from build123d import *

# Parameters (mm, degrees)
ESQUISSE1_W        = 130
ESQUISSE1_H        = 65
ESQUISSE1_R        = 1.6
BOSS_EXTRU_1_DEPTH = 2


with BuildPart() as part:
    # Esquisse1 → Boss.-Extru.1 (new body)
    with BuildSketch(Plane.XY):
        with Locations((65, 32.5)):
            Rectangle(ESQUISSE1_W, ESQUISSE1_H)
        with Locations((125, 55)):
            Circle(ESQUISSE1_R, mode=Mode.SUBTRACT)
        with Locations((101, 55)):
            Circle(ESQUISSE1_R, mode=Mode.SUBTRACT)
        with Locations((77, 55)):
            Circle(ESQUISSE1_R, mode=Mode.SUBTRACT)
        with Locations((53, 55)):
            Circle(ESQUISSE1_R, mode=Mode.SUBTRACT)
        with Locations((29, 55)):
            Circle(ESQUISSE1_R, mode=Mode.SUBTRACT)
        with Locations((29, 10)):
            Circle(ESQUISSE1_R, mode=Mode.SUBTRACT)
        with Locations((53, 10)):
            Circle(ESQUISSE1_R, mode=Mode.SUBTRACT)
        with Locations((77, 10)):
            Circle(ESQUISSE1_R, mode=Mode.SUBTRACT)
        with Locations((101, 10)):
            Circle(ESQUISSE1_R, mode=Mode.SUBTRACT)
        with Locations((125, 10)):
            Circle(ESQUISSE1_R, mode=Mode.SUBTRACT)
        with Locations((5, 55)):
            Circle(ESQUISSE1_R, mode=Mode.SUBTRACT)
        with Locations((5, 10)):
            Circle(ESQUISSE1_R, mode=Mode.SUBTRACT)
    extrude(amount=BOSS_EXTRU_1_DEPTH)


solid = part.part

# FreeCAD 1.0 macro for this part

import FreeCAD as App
import Part
import Sketcher

doc = App.newDocument("Part")
params = doc.addObject("Spreadsheet::Sheet", "Params")
for row, (alias, value) in enumerate([
    ("sketch1_diameter", "3.2 mm"),
    ("sketch1_width", "130 mm"),
    ("sketch1_height", "65 mm"),
    ("pad1_length", "2 mm"),
], start=1):
    params.set(f"A{row}", alias)
    params.set(f"B{row}", "=" + value)
    params.setAlias(f"B{row}", alias)

body = doc.addObject("PartDesign::Body", "Body")

# Sketch on XY plane
sketch1 = body.newObject("Sketcher::SketchObject", "Sketch")
sketch1.AttachmentSupport = (doc.getObject("XY_Plane"), [""])
sketch1.MapMode = "FlatFace"
sketch1.addGeometry(Part.LineSegment(App.Vector(0, 65, 0), App.Vector(0, 0, 0)), False)
sketch1.addGeometry(Part.LineSegment(App.Vector(0, 0, 0), App.Vector(130, 0, 0)), False)
sketch1.addGeometry(Part.LineSegment(App.Vector(130, 0, 0), App.Vector(130, 65, 0)), False)
sketch1.addGeometry(Part.LineSegment(App.Vector(130, 65, 0), App.Vector(0, 65, 0)), False)
sketch1.addGeometry(Part.Circle(App.Vector(5, 10, 0), App.Vector(0, 0, 1), 1.6), False)
sketch1.addGeometry(Part.Circle(App.Vector(29, 10, 0), App.Vector(0, 0, 1), 1.6), False)
sketch1.addGeometry(Part.Circle(App.Vector(53, 10, 0), App.Vector(0, 0, 1), 1.6), False)
sketch1.addGeometry(Part.Circle(App.Vector(77, 10, 0), App.Vector(0, 0, 1), 1.6), False)
sketch1.addGeometry(Part.Circle(App.Vector(101, 10, 0), App.Vector(0, 0, 1), 1.6), False)
sketch1.addGeometry(Part.Circle(App.Vector(125, 10, 0), App.Vector(0, 0, 1), 1.6), False)
sketch1.addGeometry(Part.Circle(App.Vector(5, 55, 0), App.Vector(0, 0, 1), 1.6), False)
sketch1.addGeometry(Part.Circle(App.Vector(29, 55, 0), App.Vector(0, 0, 1), 1.6), False)
sketch1.addGeometry(Part.Circle(App.Vector(53, 55, 0), App.Vector(0, 0, 1), 1.6), False)
sketch1.addGeometry(Part.Circle(App.Vector(77, 55, 0), App.Vector(0, 0, 1), 1.6), False)
sketch1.addGeometry(Part.Circle(App.Vector(101, 55, 0), App.Vector(0, 0, 1), 1.6), False)
sketch1.addGeometry(Part.Circle(App.Vector(125, 55, 0), App.Vector(0, 0, 1), 1.6), False)
sketch1.addConstraint(Sketcher.Constraint("Coincident", 0, 2, 1, 1))
sketch1.addConstraint(Sketcher.Constraint("Coincident", 1, 2, 2, 1))
sketch1.addConstraint(Sketcher.Constraint("Coincident", 2, 2, 3, 1))
sketch1.addConstraint(Sketcher.Constraint("Coincident", 3, 2, 0, 1))
sketch1.addConstraint(Sketcher.Constraint("Vertical", 0))
sketch1.addConstraint(Sketcher.Constraint("Horizontal", 1))
sketch1.addConstraint(Sketcher.Constraint("Vertical", 2))
sketch1.addConstraint(Sketcher.Constraint("Horizontal", 3))
sketch1.addConstraint(Sketcher.Constraint("Coincident", 0, 2, -1, 1))
sketch1.addConstraint(Sketcher.Constraint("Equal", 4, 5))
sketch1.addConstraint(Sketcher.Constraint("Equal", 5, 6))
sketch1.addConstraint(Sketcher.Constraint("Equal", 6, 7))
sketch1.addConstraint(Sketcher.Constraint("Equal", 7, 8))
sketch1.addConstraint(Sketcher.Constraint("Equal", 8, 9))
sketch1.addConstraint(Sketcher.Constraint("Equal", 9, 10))
sketch1.addConstraint(Sketcher.Constraint("Equal", 10, 11))
sketch1.addConstraint(Sketcher.Constraint("Equal", 11, 12))
sketch1.addConstraint(Sketcher.Constraint("Equal", 12, 13))
sketch1.addConstraint(Sketcher.Constraint("Equal", 13, 14))
sketch1.addConstraint(Sketcher.Constraint("Equal", 14, 15))
sketch1.addConstraint(Sketcher.Constraint("Horizontal", 4, 3, 5, 3))
sketch1.addConstraint(Sketcher.Constraint("Horizontal", 5, 3, 6, 3))
sketch1.addConstraint(Sketcher.Constraint("Horizontal", 6, 3, 7, 3))
sketch1.addConstraint(Sketcher.Constraint("Horizontal", 7, 3, 8, 3))
sketch1.addConstraint(Sketcher.Constraint("Horizontal", 8, 3, 9, 3))
sketch1.addConstraint(Sketcher.Constraint("Horizontal", 10, 3, 11, 3))
sketch1.addConstraint(Sketcher.Constraint("Horizontal", 11, 3, 12, 3))
sketch1.addConstraint(Sketcher.Constraint("Horizontal", 12, 3, 13, 3))
sketch1.addConstraint(Sketcher.Constraint("Horizontal", 13, 3, 14, 3))
sketch1.addConstraint(Sketcher.Constraint("Horizontal", 14, 3, 15, 3))
sketch1.addConstraint(Sketcher.Constraint("Vertical", 4, 3, 10, 3))
sketch1.addConstraint(Sketcher.Constraint("Vertical", 5, 3, 11, 3))
sketch1.addConstraint(Sketcher.Constraint("Vertical", 6, 3, 12, 3))
sketch1.addConstraint(Sketcher.Constraint("Vertical", 7, 3, 13, 3))
sketch1.addConstraint(Sketcher.Constraint("Vertical", 8, 3, 14, 3))
sketch1.addConstraint(Sketcher.Constraint("Vertical", 9, 3, 15, 3))
sketch1.addConstraint(Sketcher.Constraint("Diameter", 4, 3.2))
sketch1.addConstraint(Sketcher.Constraint("DistanceX", 1, 1, 1, 2, 130.0))
sketch1.addConstraint(Sketcher.Constraint("DistanceY", 0, 2, 0, 1, 65.0))
sketch1.addConstraint(Sketcher.Constraint("DistanceX", -1, 1, 4, 3, 5.0))
sketch1.addConstraint(Sketcher.Constraint("DistanceY", -1, 1, 4, 3, 10.0))
sketch1.addConstraint(Sketcher.Constraint("DistanceX", -1, 1, 5, 3, 29.0))
sketch1.addConstraint(Sketcher.Constraint("DistanceX", -1, 1, 6, 3, 53.0))
sketch1.addConstraint(Sketcher.Constraint("DistanceX", -1, 1, 7, 3, 77.0))
sketch1.addConstraint(Sketcher.Constraint("DistanceX", -1, 1, 8, 3, 101.0))
sketch1.addConstraint(Sketcher.Constraint("DistanceX", -1, 1, 9, 3, 125.0))
sketch1.addConstraint(Sketcher.Constraint("DistanceY", -1, 1, 10, 3, 55.0))
sketch1.setExpression("Constraints[36]", "Params.sketch1_diameter")
sketch1.setExpression("Constraints[37]", "Params.sketch1_width")
sketch1.setExpression("Constraints[38]", "Params.sketch1_height")
pad1 = body.newObject("PartDesign::Pad", "Pad")
pad1.Profile = sketch1
pad1.setExpression("Length", "Params.pad1_length")

doc.recompute()
